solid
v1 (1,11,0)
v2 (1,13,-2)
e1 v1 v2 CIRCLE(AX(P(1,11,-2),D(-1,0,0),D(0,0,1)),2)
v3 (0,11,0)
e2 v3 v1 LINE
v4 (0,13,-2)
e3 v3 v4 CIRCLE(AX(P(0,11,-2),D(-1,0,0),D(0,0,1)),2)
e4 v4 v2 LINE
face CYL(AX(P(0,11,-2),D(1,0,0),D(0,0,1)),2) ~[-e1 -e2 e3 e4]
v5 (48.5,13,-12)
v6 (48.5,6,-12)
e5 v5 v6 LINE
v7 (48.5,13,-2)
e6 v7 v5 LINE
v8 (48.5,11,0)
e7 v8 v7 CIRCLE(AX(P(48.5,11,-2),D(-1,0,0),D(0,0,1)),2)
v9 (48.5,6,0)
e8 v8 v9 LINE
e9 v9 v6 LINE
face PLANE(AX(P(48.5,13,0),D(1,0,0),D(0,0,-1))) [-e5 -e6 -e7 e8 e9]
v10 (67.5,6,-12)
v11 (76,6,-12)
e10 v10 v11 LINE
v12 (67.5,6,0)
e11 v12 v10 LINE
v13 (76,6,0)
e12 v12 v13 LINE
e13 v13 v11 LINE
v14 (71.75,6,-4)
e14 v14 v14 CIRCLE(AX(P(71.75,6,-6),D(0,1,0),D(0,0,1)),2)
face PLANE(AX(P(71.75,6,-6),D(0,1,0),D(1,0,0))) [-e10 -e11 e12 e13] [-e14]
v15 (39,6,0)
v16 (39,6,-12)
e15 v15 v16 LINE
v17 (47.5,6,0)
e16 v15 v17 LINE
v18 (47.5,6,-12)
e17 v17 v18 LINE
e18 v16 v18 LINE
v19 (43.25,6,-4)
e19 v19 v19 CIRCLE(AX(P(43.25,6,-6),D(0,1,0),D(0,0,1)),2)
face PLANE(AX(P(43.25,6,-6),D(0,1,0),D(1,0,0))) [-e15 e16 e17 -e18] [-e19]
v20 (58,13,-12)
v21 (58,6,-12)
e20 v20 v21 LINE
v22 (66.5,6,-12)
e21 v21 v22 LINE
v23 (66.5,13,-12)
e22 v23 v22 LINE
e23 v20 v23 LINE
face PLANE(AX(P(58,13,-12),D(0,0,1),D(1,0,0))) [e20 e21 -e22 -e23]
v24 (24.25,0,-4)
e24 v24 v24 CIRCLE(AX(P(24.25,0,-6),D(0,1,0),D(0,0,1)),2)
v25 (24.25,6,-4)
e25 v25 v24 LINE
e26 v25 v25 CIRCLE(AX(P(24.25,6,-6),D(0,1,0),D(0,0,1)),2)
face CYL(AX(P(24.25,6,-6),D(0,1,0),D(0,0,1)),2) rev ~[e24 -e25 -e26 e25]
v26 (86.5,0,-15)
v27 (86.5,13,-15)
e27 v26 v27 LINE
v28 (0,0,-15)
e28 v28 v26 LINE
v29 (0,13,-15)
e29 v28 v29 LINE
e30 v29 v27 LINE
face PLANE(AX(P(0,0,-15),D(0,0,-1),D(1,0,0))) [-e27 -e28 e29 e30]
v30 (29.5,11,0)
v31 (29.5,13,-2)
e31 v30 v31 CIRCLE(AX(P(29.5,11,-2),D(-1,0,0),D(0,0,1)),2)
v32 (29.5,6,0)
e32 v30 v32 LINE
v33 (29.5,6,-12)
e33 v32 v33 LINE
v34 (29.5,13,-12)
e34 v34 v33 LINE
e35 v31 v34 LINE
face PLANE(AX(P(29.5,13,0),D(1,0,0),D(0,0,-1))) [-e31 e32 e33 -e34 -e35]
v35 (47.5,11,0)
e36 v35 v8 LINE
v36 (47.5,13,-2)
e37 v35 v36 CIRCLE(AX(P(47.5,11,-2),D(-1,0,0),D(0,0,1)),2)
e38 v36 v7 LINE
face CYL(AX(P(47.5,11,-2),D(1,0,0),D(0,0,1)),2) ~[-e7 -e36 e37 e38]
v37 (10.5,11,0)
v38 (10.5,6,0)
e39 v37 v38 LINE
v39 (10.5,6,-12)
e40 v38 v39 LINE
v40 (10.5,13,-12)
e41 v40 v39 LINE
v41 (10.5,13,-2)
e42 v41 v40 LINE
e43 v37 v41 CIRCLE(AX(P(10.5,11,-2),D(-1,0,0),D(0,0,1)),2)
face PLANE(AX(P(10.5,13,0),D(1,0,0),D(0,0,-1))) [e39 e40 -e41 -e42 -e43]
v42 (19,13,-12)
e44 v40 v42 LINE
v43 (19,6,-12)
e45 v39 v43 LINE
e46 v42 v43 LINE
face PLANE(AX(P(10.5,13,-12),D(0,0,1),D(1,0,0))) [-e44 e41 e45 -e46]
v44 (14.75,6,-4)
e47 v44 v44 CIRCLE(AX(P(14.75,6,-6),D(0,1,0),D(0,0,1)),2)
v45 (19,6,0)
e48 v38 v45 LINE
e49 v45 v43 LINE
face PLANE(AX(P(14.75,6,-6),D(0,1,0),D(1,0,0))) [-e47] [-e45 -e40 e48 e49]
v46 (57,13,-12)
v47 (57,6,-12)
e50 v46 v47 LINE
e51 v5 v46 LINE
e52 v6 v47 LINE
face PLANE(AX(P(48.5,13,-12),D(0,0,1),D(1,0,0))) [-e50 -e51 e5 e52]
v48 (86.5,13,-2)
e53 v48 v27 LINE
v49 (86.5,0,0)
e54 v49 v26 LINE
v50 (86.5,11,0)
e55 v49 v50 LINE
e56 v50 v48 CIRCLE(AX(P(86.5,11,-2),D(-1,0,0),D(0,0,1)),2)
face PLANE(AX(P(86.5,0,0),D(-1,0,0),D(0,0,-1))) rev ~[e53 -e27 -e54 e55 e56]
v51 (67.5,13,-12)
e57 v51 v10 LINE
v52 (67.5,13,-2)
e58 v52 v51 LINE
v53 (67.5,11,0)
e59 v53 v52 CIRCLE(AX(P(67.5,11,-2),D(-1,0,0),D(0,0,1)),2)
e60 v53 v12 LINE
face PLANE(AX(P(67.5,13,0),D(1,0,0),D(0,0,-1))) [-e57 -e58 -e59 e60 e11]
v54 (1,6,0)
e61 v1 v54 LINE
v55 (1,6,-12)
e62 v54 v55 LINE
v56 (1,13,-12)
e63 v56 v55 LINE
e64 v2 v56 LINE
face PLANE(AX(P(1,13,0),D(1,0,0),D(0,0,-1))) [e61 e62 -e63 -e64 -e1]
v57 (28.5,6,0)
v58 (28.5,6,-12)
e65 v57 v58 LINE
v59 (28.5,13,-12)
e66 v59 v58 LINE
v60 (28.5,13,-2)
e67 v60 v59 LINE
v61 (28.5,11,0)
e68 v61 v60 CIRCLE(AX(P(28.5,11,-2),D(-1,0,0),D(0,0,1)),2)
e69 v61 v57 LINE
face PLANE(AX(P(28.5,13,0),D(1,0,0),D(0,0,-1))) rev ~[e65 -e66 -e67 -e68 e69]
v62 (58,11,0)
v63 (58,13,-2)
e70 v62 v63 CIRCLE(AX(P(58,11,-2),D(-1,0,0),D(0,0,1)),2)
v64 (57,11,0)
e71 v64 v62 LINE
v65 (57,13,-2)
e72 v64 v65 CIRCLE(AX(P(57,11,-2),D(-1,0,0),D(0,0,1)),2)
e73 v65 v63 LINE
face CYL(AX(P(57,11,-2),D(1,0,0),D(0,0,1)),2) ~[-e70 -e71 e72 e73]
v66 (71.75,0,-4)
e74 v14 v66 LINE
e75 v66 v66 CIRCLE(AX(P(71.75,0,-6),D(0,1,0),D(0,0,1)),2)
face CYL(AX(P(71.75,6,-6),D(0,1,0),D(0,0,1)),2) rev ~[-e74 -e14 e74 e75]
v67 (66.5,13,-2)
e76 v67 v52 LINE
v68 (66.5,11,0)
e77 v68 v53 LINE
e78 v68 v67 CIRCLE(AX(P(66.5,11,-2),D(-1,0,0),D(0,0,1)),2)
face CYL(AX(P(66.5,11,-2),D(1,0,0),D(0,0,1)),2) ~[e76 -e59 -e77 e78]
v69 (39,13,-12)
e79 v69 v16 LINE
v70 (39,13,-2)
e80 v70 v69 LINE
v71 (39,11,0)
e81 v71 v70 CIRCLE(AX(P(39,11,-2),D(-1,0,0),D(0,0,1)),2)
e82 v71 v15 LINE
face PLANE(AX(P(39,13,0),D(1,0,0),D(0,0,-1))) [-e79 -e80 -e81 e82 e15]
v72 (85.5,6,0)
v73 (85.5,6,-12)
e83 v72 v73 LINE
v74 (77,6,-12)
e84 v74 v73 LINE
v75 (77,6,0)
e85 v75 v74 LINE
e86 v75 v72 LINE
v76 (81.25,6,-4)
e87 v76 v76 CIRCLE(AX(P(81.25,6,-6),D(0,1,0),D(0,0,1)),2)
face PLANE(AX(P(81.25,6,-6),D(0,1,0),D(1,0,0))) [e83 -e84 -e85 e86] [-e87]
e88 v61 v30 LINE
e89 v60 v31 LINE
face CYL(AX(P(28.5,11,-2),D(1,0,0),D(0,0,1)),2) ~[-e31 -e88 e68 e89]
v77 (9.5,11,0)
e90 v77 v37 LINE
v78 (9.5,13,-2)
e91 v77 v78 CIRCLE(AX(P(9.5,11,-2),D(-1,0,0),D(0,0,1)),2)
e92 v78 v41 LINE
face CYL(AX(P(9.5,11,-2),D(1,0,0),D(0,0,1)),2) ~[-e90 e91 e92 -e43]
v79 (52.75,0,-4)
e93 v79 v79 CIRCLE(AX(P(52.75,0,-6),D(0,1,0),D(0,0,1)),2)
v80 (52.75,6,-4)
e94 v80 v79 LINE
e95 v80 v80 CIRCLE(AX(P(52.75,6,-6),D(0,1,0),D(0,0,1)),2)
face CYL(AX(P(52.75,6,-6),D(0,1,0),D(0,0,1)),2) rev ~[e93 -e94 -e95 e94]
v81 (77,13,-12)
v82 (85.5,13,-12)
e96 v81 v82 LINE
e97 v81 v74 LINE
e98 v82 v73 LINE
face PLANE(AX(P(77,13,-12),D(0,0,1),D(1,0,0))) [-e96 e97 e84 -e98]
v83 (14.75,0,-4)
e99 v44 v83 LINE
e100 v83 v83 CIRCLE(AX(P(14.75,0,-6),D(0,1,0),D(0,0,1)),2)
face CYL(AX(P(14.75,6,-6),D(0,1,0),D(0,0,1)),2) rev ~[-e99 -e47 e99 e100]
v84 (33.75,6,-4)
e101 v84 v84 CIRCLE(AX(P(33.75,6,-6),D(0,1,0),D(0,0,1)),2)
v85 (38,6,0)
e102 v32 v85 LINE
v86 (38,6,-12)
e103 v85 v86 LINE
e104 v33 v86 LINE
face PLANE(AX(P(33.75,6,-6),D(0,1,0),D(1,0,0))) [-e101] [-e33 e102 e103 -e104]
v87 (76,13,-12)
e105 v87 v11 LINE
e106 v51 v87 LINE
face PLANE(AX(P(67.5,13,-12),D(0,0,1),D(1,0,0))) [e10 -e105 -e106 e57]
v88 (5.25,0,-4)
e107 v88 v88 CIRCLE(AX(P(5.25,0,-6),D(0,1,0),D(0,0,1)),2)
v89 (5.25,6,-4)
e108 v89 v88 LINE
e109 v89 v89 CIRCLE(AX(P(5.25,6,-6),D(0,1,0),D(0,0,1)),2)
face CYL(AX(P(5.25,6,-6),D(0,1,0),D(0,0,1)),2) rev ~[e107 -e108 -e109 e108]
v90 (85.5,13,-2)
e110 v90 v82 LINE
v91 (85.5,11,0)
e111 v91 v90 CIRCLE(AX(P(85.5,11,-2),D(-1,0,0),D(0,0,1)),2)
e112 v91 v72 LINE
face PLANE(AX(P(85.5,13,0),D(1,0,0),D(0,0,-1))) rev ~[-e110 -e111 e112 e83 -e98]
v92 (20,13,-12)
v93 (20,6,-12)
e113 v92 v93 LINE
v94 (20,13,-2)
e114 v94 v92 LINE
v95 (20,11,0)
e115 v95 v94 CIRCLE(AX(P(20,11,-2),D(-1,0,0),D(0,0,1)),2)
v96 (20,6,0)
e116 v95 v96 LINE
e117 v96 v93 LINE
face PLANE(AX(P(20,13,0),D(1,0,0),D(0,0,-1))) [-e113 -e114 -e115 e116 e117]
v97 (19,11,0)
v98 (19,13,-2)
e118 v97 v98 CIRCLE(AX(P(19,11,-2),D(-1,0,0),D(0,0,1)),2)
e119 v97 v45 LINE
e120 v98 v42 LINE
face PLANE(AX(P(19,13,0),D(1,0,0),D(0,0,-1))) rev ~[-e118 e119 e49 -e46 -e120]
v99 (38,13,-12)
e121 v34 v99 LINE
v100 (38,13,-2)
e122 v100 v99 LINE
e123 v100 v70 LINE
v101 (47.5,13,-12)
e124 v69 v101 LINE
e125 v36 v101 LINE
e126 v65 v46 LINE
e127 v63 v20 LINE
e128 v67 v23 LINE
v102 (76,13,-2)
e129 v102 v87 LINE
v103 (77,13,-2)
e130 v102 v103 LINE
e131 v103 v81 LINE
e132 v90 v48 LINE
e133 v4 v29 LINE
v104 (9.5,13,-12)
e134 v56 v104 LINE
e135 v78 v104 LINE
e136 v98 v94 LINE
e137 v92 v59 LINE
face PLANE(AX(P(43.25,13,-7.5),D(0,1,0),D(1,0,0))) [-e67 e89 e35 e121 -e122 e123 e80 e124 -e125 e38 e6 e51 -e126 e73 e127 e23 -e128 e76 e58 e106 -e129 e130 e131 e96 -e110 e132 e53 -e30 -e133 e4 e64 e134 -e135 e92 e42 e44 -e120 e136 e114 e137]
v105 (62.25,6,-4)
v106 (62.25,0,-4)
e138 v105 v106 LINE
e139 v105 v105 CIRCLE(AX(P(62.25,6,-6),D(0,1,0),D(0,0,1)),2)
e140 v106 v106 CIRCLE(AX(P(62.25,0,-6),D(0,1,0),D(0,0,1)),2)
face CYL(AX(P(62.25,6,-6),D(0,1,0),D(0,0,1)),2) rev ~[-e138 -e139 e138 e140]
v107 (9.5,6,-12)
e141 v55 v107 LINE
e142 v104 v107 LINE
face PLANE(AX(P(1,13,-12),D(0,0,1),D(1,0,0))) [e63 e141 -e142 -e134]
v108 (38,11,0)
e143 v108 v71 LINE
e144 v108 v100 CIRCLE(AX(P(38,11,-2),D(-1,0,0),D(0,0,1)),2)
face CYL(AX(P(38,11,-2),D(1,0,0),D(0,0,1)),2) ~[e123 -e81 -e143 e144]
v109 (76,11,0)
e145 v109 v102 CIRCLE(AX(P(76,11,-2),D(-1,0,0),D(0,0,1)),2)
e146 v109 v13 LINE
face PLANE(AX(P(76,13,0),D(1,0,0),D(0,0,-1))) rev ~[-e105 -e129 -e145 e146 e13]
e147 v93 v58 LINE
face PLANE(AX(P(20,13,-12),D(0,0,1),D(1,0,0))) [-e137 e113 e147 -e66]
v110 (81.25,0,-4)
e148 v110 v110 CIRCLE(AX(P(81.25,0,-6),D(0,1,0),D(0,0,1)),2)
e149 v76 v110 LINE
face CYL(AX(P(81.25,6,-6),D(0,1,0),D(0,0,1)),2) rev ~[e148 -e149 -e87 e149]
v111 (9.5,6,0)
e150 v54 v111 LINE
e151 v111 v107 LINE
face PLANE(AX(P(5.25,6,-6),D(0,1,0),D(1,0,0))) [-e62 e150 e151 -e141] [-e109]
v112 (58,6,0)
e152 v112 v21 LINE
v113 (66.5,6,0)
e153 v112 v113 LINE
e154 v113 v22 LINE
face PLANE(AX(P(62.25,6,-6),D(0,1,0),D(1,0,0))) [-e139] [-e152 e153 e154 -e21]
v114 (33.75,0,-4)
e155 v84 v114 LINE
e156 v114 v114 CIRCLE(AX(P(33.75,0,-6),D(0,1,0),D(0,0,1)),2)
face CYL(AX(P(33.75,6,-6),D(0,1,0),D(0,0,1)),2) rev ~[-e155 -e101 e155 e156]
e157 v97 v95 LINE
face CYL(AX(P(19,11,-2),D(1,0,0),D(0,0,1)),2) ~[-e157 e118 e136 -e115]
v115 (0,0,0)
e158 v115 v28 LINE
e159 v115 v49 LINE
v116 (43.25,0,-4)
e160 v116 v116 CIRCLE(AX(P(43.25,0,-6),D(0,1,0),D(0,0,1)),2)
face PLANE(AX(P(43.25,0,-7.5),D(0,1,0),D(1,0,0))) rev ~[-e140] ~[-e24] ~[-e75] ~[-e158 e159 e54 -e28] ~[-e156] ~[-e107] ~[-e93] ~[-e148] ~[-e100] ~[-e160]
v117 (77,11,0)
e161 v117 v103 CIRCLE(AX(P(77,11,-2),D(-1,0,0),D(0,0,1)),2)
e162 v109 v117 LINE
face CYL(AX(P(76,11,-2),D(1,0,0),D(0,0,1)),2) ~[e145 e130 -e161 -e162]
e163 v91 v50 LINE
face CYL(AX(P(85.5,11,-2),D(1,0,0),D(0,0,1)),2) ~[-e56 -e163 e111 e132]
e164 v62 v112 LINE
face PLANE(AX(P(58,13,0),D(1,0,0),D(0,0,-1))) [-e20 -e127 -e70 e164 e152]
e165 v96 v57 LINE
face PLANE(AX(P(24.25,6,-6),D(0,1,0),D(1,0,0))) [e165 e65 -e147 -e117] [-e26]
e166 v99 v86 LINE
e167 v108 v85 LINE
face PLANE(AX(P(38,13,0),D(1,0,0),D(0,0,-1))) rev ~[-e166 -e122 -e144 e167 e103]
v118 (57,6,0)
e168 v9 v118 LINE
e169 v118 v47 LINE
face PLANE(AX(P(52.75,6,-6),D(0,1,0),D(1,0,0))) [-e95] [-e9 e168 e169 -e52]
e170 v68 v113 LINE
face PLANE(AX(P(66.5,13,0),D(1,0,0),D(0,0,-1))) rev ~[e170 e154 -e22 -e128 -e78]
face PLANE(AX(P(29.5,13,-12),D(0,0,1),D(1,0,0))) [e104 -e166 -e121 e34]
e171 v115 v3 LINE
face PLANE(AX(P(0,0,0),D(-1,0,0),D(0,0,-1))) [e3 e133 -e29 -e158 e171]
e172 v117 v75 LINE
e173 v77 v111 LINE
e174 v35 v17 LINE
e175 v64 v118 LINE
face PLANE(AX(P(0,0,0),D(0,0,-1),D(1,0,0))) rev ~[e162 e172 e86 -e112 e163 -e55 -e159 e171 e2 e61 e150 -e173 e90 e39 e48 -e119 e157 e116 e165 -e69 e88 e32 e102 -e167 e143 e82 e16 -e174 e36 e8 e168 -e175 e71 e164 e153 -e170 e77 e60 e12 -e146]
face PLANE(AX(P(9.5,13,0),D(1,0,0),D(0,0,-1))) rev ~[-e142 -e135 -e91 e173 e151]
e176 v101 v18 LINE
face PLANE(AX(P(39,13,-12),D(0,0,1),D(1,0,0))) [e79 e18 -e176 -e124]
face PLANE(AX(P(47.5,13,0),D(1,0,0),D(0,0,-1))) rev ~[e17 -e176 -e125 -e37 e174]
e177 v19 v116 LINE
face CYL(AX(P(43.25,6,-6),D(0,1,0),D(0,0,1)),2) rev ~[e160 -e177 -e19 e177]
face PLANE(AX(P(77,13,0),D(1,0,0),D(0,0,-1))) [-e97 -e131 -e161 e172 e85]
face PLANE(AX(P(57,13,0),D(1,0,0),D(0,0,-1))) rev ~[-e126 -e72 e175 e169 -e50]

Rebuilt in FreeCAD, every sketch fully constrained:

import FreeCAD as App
import Part
import Sketcher
from FreeCAD import Vector
Q = App.Units.Quantity


def edges_at(feature, points):
    """Names of the edges that pass closest to the given points."""
    edges = feature.Shape.Edges
    near = lambda p: min(range(len(edges)), key=lambda i: edges[i].distToShape(Part.Vertex(*p))[0])
    return sorted({f"Edge{near(p) + 1}" for p in points})

doc = App.newDocument("Part")
body = doc.addObject("PartDesign::Body", "Body")

sketch1 = body.newObject("Sketcher::SketchObject", "Sketch")
sketch1.AttachmentSupport = (doc.getObject("XZ_Plane"), [""])
sketch1.MapMode = "FlatFace"
sketch1.addGeometry(Part.LineSegment(Vector(0, -15, 0), Vector(0, 0, 0)), False)
sketch1.addGeometry(Part.LineSegment(Vector(0, 0, 0), Vector(86.5, 0, 0)), False)
sketch1.addGeometry(Part.LineSegment(Vector(86.5, 0, 0), Vector(86.5, -15, 0)), False)
sketch1.addGeometry(Part.LineSegment(Vector(86.5, -15, 0), Vector(0, -15, 0)), False)
sketch1.addConstraint(Sketcher.Constraint("Coincident", 0, 2, 1, 1))
sketch1.addConstraint(Sketcher.Constraint("Coincident", 1, 2, 2, 1))
sketch1.addConstraint(Sketcher.Constraint("Coincident", 2, 2, 3, 1))
sketch1.addConstraint(Sketcher.Constraint("Coincident", 3, 2, 0, 1))
sketch1.addConstraint(Sketcher.Constraint("Vertical", 0))
sketch1.addConstraint(Sketcher.Constraint("Horizontal", 1))
sketch1.addConstraint(Sketcher.Constraint("Vertical", 2))
sketch1.addConstraint(Sketcher.Constraint("Horizontal", 3))
sketch1.addConstraint(Sketcher.Constraint("Coincident", 0, 2, -1, 1))
sketch1.addConstraint(Sketcher.Constraint("DistanceY", 0, 1, 0, 2, Q("15 mm")))
sketch1.addConstraint(Sketcher.Constraint("DistanceX", 1, 1, 1, 2, Q("86.5 mm")))
pad1 = body.newObject("PartDesign::Pad", "Pad")
pad1.Profile = sketch1
pad1.Length = 13
pad1.Reversed = True

sketch2 = body.newObject("Sketcher::SketchObject", "Sketch001")
sketch2.AttachmentSupport = (doc.getObject("XZ_Plane"), [""])
sketch2.MapMode = "FlatFace"
sketch2.AttachmentOffset = App.Placement(Vector(0, 0, -13), App.Rotation())
sketch2.addGeometry(Part.LineSegment(Vector(1, -12, 0), Vector(1, 0, 0)), False)
sketch2.addGeometry(Part.LineSegment(Vector(1, 0, 0), Vector(9.5, 0, 0)), False)
sketch2.addGeometry(Part.LineSegment(Vector(9.5, 0, 0), Vector(9.5, -12, 0)), False)
sketch2.addGeometry(Part.LineSegment(Vector(9.5, -12, 0), Vector(1, -12, 0)), False)
sketch2.addConstraint(Sketcher.Constraint("Coincident", 0, 2, 1, 1))
sketch2.addConstraint(Sketcher.Constraint("Coincident", 1, 2, 2, 1))
sketch2.addConstraint(Sketcher.Constraint("Coincident", 2, 2, 3, 1))
sketch2.addConstraint(Sketcher.Constraint("Coincident", 3, 2, 0, 1))
sketch2.addConstraint(Sketcher.Constraint("Vertical", 0))
sketch2.addConstraint(Sketcher.Constraint("Horizontal", 1))
sketch2.addConstraint(Sketcher.Constraint("Vertical", 2))
sketch2.addConstraint(Sketcher.Constraint("Horizontal", 3))
sketch2.addConstraint(Sketcher.Constraint("PointOnObject", 0, 2, -1))
sketch2.addConstraint(Sketcher.Constraint("DistanceY", 0, 1, 0, 2, Q("12 mm")))
sketch2.addConstraint(Sketcher.Constraint("DistanceX", 1, 1, 1, 2, Q("8.5 mm")))
sketch2.addConstraint(Sketcher.Constraint("DistanceX", -1, 1, 0, 2, Q("1 mm")))
pocket1 = body.newObject("PartDesign::Pocket", "Pocket")
pocket1.Profile = sketch2
pocket1.Length = 7
pocket1.Reversed = True
doc.recompute()

linearpattern = body.newObject("PartDesign::LinearPattern", "LinearPattern")
linearpattern.Originals = [pocket1]
linearpattern.Direction = (doc.getObject("X_Axis"), [""])
linearpattern.Mode = "offset"
linearpattern.Offset = 9.5
linearpattern.Occurrences = 9
body.Tip = linearpattern
doc.recompute()

fillet = body.newObject("PartDesign::Fillet", "Fillet")
fillet.Base = (linearpattern, edges_at(linearpattern, [
    (76.5, 13, 0),
    (86, 13, 0),
    (10, 13, 0),
    (19.5, 13, 0),
    (29, 13, 0),
    (38.5, 13, 0),
    (48, 13, 0),
    (0.5, 13, 0),
    (57.5, 13, 0),
    (67, 13, 0),
]))
fillet.Radius = 2

sketch3 = body.newObject("Sketcher::SketchObject", "Sketch002")
sketch3.AttachmentSupport = (doc.getObject("XZ_Plane"), [""])
sketch3.MapMode = "FlatFace"
sketch3.AttachmentOffset = App.Placement(Vector(0, 0, -6), App.Rotation())
sketch3.addGeometry(Part.Circle(Vector(5.25, -6, 0), Vector(0, 0, 1), 2), False)
sketch3.addConstraint(Sketcher.Constraint("Diameter", 0, Q("4 mm")))
sketch3.addConstraint(Sketcher.Constraint("DistanceY", 0, 3, -1, 1, Q("6 mm")))
sketch3.addConstraint(Sketcher.Constraint("DistanceX", -1, 1, 0, 3, Q("5.25 mm")))
pocket2 = body.newObject("PartDesign::Pocket", "Pocket001")
pocket2.Profile = sketch3
pocket2.Type = "ThroughAll"
pocket2.Reversed = True
doc.recompute()

linearpattern2 = body.newObject("PartDesign::LinearPattern", "LinearPattern001")
linearpattern2.Originals = [pocket2]
linearpattern2.Direction = (doc.getObject("X_Axis"), [""])
linearpattern2.Mode = "offset"
linearpattern2.Offset = 9.5
linearpattern2.Occurrences = 9
body.Tip = linearpattern2

doc.recompute()
